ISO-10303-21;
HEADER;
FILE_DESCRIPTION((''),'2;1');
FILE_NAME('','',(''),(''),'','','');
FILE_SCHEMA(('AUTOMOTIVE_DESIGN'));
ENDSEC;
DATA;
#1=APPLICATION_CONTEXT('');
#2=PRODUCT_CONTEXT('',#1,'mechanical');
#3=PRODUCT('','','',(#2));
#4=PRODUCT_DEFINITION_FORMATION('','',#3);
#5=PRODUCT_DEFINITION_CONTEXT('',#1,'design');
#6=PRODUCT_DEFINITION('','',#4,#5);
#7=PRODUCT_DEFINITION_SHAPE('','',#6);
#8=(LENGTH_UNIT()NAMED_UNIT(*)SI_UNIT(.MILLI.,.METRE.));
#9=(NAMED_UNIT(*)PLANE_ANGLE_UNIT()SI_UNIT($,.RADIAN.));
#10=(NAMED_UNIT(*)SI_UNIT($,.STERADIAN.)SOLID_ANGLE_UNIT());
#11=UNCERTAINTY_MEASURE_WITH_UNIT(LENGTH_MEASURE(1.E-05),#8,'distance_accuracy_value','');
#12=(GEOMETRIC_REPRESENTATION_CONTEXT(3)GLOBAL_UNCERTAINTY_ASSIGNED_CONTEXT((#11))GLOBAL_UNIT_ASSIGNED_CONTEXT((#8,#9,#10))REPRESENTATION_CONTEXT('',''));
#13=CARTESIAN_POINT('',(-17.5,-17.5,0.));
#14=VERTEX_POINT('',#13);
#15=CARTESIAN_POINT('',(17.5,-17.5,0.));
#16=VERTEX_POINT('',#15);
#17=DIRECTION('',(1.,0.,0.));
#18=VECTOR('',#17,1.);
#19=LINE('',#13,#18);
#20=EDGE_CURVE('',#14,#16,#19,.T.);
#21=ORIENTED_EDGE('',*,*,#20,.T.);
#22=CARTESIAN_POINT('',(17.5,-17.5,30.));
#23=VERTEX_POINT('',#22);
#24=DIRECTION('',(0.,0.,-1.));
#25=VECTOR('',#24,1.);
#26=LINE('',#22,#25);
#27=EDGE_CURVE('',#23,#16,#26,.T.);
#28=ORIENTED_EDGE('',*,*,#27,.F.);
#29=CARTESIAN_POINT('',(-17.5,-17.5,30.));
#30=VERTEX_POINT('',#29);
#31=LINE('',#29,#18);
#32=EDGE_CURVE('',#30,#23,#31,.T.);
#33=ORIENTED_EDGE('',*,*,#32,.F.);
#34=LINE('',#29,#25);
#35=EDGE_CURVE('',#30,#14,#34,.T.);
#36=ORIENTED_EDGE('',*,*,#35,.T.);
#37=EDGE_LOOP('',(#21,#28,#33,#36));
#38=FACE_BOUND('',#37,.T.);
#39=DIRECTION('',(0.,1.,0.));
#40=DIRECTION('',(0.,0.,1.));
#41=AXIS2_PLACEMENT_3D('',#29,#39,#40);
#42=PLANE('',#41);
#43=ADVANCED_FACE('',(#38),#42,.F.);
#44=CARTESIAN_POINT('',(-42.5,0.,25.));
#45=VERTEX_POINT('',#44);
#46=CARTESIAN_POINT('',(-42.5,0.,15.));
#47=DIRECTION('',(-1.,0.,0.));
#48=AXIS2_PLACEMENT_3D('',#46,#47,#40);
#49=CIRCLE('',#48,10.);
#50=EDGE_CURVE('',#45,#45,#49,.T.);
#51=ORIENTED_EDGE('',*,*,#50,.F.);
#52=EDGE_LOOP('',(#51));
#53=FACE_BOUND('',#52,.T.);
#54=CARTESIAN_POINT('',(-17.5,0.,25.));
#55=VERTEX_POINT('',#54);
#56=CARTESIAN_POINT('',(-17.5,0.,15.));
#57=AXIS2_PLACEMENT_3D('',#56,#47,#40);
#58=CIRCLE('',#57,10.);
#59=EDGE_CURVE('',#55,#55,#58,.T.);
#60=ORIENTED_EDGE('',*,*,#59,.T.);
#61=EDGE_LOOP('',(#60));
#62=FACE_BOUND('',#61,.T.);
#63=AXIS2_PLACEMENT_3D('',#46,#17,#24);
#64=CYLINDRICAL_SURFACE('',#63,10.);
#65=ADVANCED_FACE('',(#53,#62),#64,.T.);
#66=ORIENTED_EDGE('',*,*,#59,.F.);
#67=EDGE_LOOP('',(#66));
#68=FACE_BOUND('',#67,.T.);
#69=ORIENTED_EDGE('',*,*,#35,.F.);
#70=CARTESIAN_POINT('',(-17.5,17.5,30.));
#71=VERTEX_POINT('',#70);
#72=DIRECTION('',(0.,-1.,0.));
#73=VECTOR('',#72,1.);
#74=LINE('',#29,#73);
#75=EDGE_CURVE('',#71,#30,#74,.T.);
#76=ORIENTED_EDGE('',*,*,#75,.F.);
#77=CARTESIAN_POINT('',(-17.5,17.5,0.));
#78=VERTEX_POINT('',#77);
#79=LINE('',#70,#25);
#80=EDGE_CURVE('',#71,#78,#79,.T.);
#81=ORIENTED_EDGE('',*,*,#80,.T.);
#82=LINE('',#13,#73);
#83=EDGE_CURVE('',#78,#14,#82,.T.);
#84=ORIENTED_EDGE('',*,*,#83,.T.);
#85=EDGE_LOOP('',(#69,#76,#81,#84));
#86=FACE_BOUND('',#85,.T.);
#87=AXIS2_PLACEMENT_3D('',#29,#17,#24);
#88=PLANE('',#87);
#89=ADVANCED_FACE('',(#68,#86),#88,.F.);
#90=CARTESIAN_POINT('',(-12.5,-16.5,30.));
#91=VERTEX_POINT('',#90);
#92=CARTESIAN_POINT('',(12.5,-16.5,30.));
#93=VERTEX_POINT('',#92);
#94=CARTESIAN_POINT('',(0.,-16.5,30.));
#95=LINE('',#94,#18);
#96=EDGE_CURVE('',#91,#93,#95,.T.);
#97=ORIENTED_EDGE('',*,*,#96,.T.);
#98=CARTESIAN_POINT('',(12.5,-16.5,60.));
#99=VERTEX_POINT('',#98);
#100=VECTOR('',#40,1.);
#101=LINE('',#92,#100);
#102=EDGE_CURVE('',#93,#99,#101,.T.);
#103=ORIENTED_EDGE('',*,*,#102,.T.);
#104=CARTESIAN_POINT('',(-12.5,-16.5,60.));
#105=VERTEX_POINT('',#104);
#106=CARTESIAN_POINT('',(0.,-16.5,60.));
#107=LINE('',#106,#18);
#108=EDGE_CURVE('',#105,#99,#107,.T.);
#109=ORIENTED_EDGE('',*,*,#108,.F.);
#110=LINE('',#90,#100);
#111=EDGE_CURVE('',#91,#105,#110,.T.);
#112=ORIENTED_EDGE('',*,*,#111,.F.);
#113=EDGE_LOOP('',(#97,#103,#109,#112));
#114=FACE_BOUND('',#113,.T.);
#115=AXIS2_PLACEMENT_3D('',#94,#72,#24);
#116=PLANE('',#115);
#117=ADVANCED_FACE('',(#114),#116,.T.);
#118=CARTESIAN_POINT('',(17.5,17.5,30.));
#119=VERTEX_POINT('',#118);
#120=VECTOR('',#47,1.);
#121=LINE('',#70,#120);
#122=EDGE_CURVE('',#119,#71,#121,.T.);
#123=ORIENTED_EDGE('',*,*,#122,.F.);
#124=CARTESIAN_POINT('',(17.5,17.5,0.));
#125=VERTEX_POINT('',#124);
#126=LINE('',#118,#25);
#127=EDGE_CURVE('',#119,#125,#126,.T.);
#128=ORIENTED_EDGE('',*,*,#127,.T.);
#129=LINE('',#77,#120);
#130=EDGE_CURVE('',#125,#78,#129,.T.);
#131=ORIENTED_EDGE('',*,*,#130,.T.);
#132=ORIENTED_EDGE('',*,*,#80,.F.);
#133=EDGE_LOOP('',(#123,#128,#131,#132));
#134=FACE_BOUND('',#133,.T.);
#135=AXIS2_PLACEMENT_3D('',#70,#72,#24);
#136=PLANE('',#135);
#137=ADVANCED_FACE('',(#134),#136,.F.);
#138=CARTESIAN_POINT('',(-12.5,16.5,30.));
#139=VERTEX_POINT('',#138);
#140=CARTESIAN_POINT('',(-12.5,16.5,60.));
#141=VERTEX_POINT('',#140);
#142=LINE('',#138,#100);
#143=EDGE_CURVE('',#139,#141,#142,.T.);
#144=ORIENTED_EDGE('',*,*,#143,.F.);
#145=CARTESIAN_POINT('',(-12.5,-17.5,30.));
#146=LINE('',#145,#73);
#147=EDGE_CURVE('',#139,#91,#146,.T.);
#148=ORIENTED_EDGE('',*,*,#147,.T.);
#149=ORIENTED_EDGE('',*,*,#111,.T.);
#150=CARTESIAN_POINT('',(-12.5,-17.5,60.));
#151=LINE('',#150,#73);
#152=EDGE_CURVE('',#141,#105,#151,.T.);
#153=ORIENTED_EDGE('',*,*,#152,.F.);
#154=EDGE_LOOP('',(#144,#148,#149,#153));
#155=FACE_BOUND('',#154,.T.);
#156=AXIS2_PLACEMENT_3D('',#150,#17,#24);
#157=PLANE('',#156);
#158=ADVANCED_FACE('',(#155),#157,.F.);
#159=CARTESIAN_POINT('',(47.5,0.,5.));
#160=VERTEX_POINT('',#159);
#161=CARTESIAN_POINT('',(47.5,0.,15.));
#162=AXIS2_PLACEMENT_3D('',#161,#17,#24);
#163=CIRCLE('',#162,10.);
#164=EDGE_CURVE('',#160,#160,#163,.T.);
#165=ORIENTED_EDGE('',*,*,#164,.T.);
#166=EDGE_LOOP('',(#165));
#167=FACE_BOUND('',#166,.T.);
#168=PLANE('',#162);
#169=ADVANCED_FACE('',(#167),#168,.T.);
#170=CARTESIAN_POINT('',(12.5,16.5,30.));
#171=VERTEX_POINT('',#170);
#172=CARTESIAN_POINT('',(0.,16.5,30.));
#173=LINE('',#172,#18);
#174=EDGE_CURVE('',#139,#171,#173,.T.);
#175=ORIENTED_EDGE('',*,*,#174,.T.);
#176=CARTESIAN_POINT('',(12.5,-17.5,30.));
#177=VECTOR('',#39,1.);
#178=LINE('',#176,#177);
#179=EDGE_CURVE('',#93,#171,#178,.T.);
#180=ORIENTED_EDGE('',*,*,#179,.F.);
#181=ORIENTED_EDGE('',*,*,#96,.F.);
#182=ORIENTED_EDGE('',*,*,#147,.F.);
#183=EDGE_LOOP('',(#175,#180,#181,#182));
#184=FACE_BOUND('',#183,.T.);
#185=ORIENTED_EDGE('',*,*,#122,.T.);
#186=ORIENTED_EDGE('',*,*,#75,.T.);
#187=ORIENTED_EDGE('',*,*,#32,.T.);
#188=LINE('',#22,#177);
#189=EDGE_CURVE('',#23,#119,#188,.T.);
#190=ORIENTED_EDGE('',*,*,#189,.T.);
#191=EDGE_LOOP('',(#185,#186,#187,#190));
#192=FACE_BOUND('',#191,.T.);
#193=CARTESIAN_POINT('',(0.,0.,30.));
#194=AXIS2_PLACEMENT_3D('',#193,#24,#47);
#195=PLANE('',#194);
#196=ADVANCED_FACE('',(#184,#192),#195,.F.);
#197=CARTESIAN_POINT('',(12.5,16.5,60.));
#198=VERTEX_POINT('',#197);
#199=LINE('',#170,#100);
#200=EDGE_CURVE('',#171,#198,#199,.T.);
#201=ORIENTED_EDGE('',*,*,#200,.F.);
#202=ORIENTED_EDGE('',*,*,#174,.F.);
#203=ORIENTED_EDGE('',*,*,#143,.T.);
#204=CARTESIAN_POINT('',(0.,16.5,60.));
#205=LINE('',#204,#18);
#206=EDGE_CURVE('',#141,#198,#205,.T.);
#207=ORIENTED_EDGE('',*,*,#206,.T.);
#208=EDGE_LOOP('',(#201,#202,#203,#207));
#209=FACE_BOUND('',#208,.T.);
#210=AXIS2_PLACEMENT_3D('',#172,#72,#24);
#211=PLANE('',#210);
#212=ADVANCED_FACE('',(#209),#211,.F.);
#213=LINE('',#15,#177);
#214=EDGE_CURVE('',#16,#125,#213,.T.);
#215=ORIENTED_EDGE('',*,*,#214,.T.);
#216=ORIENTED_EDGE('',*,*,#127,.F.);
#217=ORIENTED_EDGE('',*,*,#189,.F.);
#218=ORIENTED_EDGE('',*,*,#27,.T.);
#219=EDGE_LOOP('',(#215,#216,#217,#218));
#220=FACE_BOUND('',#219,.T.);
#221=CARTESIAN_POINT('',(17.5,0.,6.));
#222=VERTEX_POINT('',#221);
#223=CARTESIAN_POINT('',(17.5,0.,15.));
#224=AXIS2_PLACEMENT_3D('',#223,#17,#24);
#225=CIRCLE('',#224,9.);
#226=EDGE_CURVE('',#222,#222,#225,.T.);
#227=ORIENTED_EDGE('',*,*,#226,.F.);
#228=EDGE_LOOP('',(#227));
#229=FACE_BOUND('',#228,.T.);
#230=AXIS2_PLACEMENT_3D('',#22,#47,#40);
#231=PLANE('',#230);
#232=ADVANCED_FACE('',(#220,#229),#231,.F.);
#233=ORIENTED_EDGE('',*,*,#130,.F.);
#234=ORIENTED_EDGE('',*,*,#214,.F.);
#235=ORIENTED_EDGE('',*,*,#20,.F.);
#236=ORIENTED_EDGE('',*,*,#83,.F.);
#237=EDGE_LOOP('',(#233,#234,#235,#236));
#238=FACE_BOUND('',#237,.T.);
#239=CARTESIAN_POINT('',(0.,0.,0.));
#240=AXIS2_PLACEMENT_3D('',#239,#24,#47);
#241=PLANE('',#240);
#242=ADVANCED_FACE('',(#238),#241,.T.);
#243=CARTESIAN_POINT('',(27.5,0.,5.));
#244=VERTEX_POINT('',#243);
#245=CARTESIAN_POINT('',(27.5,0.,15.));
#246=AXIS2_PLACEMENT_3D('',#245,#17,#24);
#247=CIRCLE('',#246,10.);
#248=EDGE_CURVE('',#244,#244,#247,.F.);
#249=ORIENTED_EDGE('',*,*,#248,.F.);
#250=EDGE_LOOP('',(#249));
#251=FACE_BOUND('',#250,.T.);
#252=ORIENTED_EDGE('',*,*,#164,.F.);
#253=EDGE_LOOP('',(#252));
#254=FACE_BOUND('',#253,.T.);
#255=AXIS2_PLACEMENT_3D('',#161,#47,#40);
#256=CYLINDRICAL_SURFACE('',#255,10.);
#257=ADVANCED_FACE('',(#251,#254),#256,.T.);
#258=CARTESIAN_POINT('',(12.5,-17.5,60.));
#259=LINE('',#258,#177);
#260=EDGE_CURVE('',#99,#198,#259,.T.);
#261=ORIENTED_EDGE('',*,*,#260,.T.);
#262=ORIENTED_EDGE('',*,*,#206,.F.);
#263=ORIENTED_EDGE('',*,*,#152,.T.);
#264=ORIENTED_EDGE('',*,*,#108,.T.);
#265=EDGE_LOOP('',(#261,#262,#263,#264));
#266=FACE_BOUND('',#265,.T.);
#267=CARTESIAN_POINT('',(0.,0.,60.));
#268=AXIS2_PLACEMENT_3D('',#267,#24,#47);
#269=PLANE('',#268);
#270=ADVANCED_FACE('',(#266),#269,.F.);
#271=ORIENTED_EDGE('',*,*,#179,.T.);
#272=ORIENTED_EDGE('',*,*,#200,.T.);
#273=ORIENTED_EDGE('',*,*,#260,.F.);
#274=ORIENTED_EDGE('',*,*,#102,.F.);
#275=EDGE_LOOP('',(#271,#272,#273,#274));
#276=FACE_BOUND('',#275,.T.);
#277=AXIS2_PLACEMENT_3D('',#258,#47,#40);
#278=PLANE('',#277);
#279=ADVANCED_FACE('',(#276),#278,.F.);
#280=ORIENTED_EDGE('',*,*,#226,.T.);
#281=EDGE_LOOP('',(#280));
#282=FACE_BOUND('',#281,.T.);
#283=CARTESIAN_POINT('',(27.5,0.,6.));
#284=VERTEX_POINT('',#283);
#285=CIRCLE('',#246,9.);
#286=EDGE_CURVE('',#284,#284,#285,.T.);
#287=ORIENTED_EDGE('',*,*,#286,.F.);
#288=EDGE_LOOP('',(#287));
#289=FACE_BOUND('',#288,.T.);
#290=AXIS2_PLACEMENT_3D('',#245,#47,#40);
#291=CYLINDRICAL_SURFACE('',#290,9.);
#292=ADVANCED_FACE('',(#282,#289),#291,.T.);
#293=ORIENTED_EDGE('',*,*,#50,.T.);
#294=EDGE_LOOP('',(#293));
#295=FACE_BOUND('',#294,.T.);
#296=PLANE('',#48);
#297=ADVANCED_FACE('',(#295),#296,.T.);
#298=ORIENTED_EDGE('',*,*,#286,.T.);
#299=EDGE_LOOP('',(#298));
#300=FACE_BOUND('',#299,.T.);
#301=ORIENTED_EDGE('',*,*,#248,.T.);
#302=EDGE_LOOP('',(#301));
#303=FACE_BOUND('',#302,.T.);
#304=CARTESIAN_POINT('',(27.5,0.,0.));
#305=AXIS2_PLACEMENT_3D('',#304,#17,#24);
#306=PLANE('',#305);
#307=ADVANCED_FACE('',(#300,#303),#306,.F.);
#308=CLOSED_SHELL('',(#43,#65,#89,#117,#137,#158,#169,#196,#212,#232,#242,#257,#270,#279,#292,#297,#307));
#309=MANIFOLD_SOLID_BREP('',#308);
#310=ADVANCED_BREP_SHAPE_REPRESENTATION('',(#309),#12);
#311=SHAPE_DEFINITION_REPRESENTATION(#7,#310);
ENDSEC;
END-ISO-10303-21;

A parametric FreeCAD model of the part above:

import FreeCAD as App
import Part
import Sketcher
Q = App.Units.Quantity

doc = App.newDocument("Part")
body = doc.addObject("PartDesign::Body", "Body")

sketch1 = body.newObject("Sketcher::SketchObject", "Sketch")
sketch1.AttachmentSupport = (doc.getObject("XY_Plane"), [""])
sketch1.MapMode = "FlatFace"
sketch1.addGeometry([
    Part.LineSegment(App.Vector(-18, 18, 0), App.Vector(-18, -18, 0)),
    Part.LineSegment(App.Vector(-18, -18, 0), App.Vector(18, -18, 0)),
    Part.LineSegment(App.Vector(18, -18, 0), App.Vector(18, 18, 0)),
    Part.LineSegment(App.Vector(18, 18, 0), App.Vector(-18, 18, 0)),
], False)
sketch1.addConstraint([
    Sketcher.Constraint("Coincident", 0, 2, 1, 1),
    Sketcher.Constraint("Coincident", 1, 2, 2, 1),
    Sketcher.Constraint("Coincident", 2, 2, 3, 1),
    Sketcher.Constraint("Coincident", 3, 2, 0, 1),
    Sketcher.Constraint("Vertical", 0),
    Sketcher.Constraint("Horizontal", 1),
    Sketcher.Constraint("Vertical", 2),
    Sketcher.Constraint("Horizontal", 3),
    Sketcher.Constraint("Symmetric", 0, 2, 2, 2, -1, 1),
    Sketcher.Constraint("Equal", 3, 0),
    Sketcher.Constraint("DistanceX", 1, 1, 1, 2, Q("35 mm")),
])
pad1 = body.newObject("PartDesign::Pad", "Pad")
pad1.Profile = sketch1
pad1.Length = 30

sketch2 = body.newObject("Sketcher::SketchObject", "Sketch001")
sketch2.AttachmentSupport = (doc.getObject("XY_Plane"), [""])
sketch2.MapMode = "FlatFace"
sketch2.AttachmentOffset = App.Placement(App.Vector(0, 0, 30), App.Rotation())
sketch2.addGeometry([
    Part.LineSegment(App.Vector(-12, 18, 0), App.Vector(-12, -18, 0)),
    Part.LineSegment(App.Vector(-12, -18, 0), App.Vector(12, -18, 0)),
    Part.LineSegment(App.Vector(12, -18, 0), App.Vector(12, 18, 0)),
    Part.LineSegment(App.Vector(12, 18, 0), App.Vector(-12, 18, 0)),
], False)
sketch2.addConstraint([
    Sketcher.Constraint("Coincident", 0, 2, 1, 1),
    Sketcher.Constraint("Coincident", 1, 2, 2, 1),
    Sketcher.Constraint("Coincident", 2, 2, 3, 1),
    Sketcher.Constraint("Coincident", 3, 2, 0, 1),
    Sketcher.Constraint("Vertical", 0),
    Sketcher.Constraint("Horizontal", 1),
    Sketcher.Constraint("Vertical", 2),
    Sketcher.Constraint("Horizontal", 3),
    Sketcher.Constraint("Symmetric", 0, 2, 2, 2, -1, 1),
    Sketcher.Constraint("DistanceX", 1, 1, 1, 2, Q("25 mm")),
    Sketcher.Constraint("DistanceY", 0, 2, 0, 1, Q("35 mm")),
])
pad2 = body.newObject("PartDesign::Pad", "Pad001")
pad2.Profile = sketch2
pad2.Length = 30

sketch3 = body.newObject("Sketcher::SketchObject", "Sketch002")
sketch3.AttachmentSupport = (doc.getObject("YZ_Plane"), [""])
sketch3.MapMode = "FlatFace"
sketch3.AttachmentOffset = App.Placement(App.Vector(0, 0, -17.5), App.Rotation())
sketch3.addGeometry(Part.Circle(App.Vector(0, 15, 0), App.Vector(0, 0, 1), 10), False)
sketch3.addConstraint([
    Sketcher.Constraint("PointOnObject", 0, 3, -2),
    Sketcher.Constraint("Diameter", 0, Q("20 mm")),
    Sketcher.Constraint("DistanceY", -1, 1, 0, 3, Q("15 mm")),
])
pad3 = body.newObject("PartDesign::Pad", "Pad002")
pad3.Profile = sketch3
pad3.Length = 25
pad3.Reversed = True

sketch4 = body.newObject("Sketcher::SketchObject", "Sketch003")
sketch4.AttachmentSupport = (doc.getObject("YZ_Plane"), [""])
sketch4.MapMode = "FlatFace"
sketch4.AttachmentOffset = App.Placement(App.Vector(0, 0, 47.5), App.Rotation())
sketch4.addGeometry(Part.Circle(App.Vector(0, 15, 0), App.Vector(0, 0, 1), 10), False)
sketch4.addConstraint([
    Sketcher.Constraint("PointOnObject", 0, 3, -2),
    Sketcher.Constraint("Diameter", 0, Q("20 mm")),
    Sketcher.Constraint("DistanceY", -1, 1, 0, 3, Q("15 mm")),
])
pad4 = body.newObject("PartDesign::Pad", "Pad003")
pad4.Profile = sketch4
pad4.Length = 30
pad4.Reversed = True

sketch5 = body.newObject("Sketcher::SketchObject", "Sketch004")
sketch5.AttachmentSupport = (doc.getObject("YZ_Plane"), [""])
sketch5.MapMode = "FlatFace"
sketch5.AttachmentOffset = App.Placement(App.Vector(0, 0, 27.5), App.Rotation())
sketch5.addGeometry([
    Part.Circle(App.Vector(0, 15, 0), App.Vector(0, 0, 1), 10),
    Part.Circle(App.Vector(0, 15, 0), App.Vector(0, 0, 1), 9),
], False)
sketch5.addConstraint([
    Sketcher.Constraint("Coincident", 1, 3, 0, 3),
    Sketcher.Constraint("PointOnObject", 0, 3, -2),
    Sketcher.Constraint("Diameter", 0, Q("20 mm")),
    Sketcher.Constraint("Diameter", 1, Q("18 mm")),
    Sketcher.Constraint("DistanceY", -1, 1, 0, 3, Q("15 mm")),
])
pocket1 = body.newObject("PartDesign::Pocket", "Pocket")
pocket1.Profile = sketch5
pocket1.Length = 10

sketch6 = body.newObject("Sketcher::SketchObject", "Sketch005")
sketch6.AttachmentSupport = (doc.getObject("XY_Plane"), [""])
sketch6.MapMode = "FlatFace"
sketch6.AttachmentOffset = App.Placement(App.Vector(0, 0, 60), App.Rotation())
sketch6.addGeometry([
    Part.LineSegment(App.Vector(-12.5, 17.5, 0), App.Vector(-12.5, 16.5, 0)),
    Part.LineSegment(App.Vector(-12.5, 16.5, 0), App.Vector(12.5, 16.5, 0)),
    Part.LineSegment(App.Vector(12.5, 16.5, 0), App.Vector(12.5, 17.5, 0)),
    Part.LineSegment(App.Vector(12.5, 17.5, 0), App.Vector(-12.5, 17.5, 0)),
    Part.LineSegment(App.Vector(-12.5, -16.5, 0), App.Vector(-12.5, -17.5, 0)),
    Part.LineSegment(App.Vector(-12.5, -17.5, 0), App.Vector(12.5, -17.5, 0)),
    Part.LineSegment(App.Vector(12.5, -17.5, 0), App.Vector(12.5, -16.5, 0)),
    Part.LineSegment(App.Vector(12.5, -16.5, 0), App.Vector(-12.5, -16.5, 0)),
], False)
sketch6.addConstraint([
    Sketcher.Constraint("Coincident", 0, 2, 1, 1),
    Sketcher.Constraint("Coincident", 1, 2, 2, 1),
    Sketcher.Constraint("Coincident", 2, 2, 3, 1),
    Sketcher.Constraint("Coincident", 3, 2, 0, 1),
    Sketcher.Constraint("Coincident", 4, 2, 5, 1),
    Sketcher.Constraint("Coincident", 5, 2, 6, 1),
    Sketcher.Constraint("Coincident", 6, 2, 7, 1),
    Sketcher.Constraint("Coincident", 7, 2, 4, 1),
    Sketcher.Constraint("Vertical", 0),
    Sketcher.Constraint("Horizontal", 1),
    Sketcher.Constraint("Vertical", 2),
    Sketcher.Constraint("Horizontal", 3),
    Sketcher.Constraint("Vertical", 4),
    Sketcher.Constraint("Horizontal", 5),
    Sketcher.Constraint("Vertical", 6),
    Sketcher.Constraint("Horizontal", 7),
    Sketcher.Constraint("Symmetric", 2, 2, 4, 2, -1, 1),
    Sketcher.Constraint("Symmetric", 0, 2, 6, 2, -1, 1),
    Sketcher.Constraint("Vertical", 3, 2, 4, 2),
    Sketcher.Constraint("DistanceX", 1, 1, 1, 2, Q("25 mm")),
    Sketcher.Constraint("DistanceY", 0, 2, 0, 1, Q("1 mm")),
    Sketcher.Constraint("DistanceY", 4, 2, 0, 2, Q("34 mm")),
])
pocket2 = body.newObject("PartDesign::Pocket", "Pocket001")
pocket2.Profile = sketch6
pocket2.Length = 30

doc.recompute()
